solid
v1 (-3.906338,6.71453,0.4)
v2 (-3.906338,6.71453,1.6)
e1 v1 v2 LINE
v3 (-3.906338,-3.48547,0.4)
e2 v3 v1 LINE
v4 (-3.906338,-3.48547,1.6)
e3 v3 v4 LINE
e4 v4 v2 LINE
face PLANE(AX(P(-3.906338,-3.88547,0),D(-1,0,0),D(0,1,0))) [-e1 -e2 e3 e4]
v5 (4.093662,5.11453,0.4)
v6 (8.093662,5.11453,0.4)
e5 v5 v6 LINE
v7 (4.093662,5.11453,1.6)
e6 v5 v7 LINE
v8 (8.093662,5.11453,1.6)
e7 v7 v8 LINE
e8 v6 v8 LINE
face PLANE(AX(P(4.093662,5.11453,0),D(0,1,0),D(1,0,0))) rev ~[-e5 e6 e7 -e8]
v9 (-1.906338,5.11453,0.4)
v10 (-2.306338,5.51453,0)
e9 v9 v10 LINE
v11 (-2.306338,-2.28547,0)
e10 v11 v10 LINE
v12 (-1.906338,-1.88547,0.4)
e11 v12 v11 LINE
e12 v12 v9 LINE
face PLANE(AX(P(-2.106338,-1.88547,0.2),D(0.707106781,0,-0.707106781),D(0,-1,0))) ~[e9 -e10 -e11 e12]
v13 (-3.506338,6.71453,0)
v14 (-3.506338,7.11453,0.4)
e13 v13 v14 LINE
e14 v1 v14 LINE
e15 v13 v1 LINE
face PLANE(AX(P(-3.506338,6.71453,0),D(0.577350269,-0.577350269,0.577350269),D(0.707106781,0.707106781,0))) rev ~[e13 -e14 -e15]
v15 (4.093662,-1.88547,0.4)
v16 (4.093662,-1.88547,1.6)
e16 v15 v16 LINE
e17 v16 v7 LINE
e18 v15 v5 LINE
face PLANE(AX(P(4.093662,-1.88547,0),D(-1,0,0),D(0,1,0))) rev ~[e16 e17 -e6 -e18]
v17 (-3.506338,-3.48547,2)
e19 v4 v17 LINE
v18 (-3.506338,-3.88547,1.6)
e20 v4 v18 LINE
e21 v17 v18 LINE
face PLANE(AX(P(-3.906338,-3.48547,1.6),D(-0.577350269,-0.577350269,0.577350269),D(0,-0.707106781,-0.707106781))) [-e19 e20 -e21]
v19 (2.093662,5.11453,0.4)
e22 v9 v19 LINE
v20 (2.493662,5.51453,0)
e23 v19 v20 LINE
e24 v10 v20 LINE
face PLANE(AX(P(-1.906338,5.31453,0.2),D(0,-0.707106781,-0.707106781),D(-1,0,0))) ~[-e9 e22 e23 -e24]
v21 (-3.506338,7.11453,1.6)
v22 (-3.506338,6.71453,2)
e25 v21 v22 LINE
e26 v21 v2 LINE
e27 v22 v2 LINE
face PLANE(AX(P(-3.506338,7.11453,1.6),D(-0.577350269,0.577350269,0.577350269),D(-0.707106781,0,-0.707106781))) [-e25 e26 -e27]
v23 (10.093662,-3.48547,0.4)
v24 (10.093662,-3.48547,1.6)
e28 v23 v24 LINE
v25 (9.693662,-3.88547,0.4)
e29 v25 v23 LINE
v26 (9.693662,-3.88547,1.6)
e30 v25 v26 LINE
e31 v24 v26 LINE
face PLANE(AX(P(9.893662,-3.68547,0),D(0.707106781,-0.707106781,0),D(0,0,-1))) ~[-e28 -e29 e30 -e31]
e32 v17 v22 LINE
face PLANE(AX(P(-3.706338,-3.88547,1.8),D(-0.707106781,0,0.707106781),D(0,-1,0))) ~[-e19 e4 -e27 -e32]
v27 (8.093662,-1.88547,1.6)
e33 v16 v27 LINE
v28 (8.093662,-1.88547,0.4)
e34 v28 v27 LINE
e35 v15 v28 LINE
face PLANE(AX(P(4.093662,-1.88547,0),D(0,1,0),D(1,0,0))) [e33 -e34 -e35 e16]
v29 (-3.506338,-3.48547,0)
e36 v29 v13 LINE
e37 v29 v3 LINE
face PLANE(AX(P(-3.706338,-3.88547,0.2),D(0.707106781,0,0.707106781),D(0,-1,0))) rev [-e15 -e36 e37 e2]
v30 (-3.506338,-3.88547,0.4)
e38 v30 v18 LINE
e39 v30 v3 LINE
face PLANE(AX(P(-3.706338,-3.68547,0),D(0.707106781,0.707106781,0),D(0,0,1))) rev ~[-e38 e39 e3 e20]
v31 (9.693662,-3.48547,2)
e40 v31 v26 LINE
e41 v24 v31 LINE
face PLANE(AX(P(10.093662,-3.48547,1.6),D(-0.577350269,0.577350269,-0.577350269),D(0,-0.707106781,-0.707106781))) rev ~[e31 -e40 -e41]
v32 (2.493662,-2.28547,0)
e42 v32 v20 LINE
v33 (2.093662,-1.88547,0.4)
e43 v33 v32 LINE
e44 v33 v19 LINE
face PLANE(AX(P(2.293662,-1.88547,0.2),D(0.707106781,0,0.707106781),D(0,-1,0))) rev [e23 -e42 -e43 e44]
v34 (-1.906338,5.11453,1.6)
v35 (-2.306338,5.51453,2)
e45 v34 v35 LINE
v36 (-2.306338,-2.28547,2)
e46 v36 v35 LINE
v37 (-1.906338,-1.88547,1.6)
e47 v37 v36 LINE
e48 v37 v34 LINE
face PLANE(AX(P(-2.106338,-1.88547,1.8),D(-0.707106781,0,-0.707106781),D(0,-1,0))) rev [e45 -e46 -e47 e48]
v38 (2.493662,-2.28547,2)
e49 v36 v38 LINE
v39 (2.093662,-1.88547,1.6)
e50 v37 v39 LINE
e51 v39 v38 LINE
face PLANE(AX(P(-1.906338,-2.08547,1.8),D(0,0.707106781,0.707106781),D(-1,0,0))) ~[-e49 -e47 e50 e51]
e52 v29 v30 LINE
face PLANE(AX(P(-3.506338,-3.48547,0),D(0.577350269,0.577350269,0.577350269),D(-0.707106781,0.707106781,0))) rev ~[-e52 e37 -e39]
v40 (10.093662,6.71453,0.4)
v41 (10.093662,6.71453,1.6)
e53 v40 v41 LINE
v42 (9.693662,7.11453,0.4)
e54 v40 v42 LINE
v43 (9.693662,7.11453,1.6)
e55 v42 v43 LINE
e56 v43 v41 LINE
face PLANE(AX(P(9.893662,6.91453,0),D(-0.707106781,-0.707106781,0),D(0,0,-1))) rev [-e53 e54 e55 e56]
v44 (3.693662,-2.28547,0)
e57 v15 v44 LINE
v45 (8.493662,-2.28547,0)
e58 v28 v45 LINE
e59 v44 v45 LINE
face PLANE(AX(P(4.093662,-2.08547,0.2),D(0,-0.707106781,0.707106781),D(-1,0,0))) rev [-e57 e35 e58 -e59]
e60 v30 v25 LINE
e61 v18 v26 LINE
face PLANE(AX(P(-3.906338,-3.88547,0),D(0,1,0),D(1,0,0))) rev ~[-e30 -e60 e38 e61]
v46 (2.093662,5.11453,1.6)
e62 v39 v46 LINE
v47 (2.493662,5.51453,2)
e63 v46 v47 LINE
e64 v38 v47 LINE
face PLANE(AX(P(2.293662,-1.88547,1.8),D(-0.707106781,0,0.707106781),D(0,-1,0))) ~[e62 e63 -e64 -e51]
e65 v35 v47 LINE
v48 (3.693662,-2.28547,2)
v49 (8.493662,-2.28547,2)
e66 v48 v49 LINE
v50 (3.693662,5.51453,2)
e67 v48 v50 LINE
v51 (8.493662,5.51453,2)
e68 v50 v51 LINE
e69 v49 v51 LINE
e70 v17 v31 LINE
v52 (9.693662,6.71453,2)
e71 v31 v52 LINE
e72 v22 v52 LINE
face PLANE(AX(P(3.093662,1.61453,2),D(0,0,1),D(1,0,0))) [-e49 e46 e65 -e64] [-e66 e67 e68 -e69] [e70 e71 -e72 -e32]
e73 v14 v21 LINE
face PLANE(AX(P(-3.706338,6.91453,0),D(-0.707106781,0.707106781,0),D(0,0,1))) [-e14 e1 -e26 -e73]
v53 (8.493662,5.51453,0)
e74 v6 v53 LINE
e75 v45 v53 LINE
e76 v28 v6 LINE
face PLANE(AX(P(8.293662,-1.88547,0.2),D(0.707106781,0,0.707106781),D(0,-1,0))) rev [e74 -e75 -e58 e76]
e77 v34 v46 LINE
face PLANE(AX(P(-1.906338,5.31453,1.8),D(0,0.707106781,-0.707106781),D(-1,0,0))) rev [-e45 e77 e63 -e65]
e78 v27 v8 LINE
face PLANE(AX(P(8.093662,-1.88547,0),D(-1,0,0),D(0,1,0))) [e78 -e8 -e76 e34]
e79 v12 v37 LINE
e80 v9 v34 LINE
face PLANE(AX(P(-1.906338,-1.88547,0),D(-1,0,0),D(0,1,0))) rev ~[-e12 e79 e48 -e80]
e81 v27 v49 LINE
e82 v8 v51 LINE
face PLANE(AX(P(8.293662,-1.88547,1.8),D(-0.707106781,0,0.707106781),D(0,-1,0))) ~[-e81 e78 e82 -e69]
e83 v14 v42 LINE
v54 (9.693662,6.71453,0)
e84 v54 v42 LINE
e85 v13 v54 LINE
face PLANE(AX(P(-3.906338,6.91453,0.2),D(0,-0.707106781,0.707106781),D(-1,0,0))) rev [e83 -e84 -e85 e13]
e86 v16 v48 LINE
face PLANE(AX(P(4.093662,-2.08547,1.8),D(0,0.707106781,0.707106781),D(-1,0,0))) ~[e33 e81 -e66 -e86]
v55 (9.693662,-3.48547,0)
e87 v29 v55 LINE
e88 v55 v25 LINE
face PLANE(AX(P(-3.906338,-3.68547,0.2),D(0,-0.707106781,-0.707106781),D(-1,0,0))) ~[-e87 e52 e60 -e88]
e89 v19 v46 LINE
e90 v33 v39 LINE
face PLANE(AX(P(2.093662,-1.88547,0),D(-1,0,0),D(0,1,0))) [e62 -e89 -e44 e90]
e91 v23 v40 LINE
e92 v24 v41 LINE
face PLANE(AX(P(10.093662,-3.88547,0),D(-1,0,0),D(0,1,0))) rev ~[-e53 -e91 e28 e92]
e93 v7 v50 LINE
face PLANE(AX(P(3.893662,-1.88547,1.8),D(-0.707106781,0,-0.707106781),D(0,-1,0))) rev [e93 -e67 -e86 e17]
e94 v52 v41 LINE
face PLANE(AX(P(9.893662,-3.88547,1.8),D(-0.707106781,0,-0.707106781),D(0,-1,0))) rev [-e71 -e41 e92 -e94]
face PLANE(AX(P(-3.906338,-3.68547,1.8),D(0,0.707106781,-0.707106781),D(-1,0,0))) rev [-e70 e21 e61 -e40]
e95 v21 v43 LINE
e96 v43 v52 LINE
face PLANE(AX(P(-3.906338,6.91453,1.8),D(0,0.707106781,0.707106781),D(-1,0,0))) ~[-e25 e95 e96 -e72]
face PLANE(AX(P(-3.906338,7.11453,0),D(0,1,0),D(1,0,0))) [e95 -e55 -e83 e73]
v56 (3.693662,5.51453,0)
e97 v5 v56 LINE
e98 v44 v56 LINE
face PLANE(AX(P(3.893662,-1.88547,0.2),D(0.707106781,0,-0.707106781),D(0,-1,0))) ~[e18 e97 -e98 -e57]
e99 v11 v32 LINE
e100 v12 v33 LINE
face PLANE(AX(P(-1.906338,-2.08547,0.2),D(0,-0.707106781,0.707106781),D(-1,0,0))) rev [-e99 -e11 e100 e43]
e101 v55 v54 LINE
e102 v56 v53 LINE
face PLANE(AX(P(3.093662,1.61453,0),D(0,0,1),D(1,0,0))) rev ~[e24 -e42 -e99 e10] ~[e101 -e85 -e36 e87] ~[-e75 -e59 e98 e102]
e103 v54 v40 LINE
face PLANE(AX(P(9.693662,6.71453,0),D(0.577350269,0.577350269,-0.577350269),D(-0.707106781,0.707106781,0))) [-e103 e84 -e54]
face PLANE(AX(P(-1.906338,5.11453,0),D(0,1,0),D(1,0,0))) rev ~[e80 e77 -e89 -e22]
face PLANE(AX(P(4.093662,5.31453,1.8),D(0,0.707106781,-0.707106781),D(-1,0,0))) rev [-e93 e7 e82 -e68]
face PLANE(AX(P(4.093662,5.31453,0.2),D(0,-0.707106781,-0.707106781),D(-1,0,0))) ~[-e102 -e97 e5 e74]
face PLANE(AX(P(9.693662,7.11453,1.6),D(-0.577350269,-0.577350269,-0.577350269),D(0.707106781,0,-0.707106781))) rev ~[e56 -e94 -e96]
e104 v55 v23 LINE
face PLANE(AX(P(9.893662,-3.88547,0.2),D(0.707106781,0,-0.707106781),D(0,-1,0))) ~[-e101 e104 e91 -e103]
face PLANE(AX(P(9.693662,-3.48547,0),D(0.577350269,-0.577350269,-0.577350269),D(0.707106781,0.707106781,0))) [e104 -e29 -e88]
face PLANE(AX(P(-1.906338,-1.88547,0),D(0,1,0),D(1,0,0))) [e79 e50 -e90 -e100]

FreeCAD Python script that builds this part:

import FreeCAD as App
import Part
import Sketcher


def edges_at(feature, points):
    """Names of the edges that pass closest to the given points."""
    edges = feature.Shape.Edges
    near = lambda p: min(range(len(edges)), key=lambda i: edges[i].distToShape(Part.Vertex(*p))[0])
    return sorted({f"Edge{near(p) + 1}" for p in points})

doc = App.newDocument("Part")
params = doc.addObject("Spreadsheet::Sheet", "Params")
for row, (alias, value) in enumerate([
    ("sketch1_width", "14 mm"),
    ("sketch1_width2", "4 mm"),
    ("sketch1_height", "11 mm"),
    ("sketch1_height2", "7 mm"),
    ("pad1_length", "2 mm"),
    ("chamfer_size", "0.4 mm"),
], start=1):
    params.set(f"A{row}", alias)
    params.set(f"B{row}", "=" + value)
    params.setAlias(f"B{row}", alias)

body = doc.addObject("PartDesign::Body", "Body")

# Sketch on XY plane
sketch1 = doc.addObject("Sketcher::SketchObject", "Sketch")
body.addObject(sketch1)
sketch1.AttachmentSupport = (doc.XY_Plane, [""])
sketch1.MapMode = "FlatFace"
sketch1.addGeometry([
    Part.LineSegment(App.Vector(-3.9, 7.1, 0), App.Vector(-3.9, -3.9, 0)),  # 0
    Part.LineSegment(App.Vector(-3.9, -3.9, 0), App.Vector(10.1, -3.9, 0)),  # 1
    Part.LineSegment(App.Vector(10.1, -3.9, 0), App.Vector(10.1, 7.1, 0)),  # 2
    Part.LineSegment(App.Vector(10.1, 7.1, 0), App.Vector(-3.9, 7.1, 0)),  # 3
    Part.LineSegment(App.Vector(2.1, -1.9, 0), App.Vector(-1.9, -1.9, 0)),  # 4
    Part.LineSegment(App.Vector(-1.9, -1.9, 0), App.Vector(-1.9, 5.1, 0)),  # 5
    Part.LineSegment(App.Vector(-1.9, 5.1, 0), App.Vector(2.1, 5.1, 0)),  # 6
    Part.LineSegment(App.Vector(2.1, 5.1, 0), App.Vector(2.1, -1.9, 0)),  # 7
    Part.LineSegment(App.Vector(8.1, -1.9, 0), App.Vector(4.1, -1.9, 0)),  # 8
    Part.LineSegment(App.Vector(4.1, -1.9, 0), App.Vector(4.1, 5.1, 0)),  # 9
    Part.LineSegment(App.Vector(4.1, 5.1, 0), App.Vector(8.1, 5.1, 0)),  # 10
    Part.LineSegment(App.Vector(8.1, 5.1, 0), App.Vector(8.1, -1.9, 0)),  # 11
], False)
sketch1.addConstraint([
    Sketcher.Constraint("Coincident", 0, 2, 1, 1),
    Sketcher.Constraint("Coincident", 1, 2, 2, 1),
    Sketcher.Constraint("Coincident", 2, 2, 3, 1),
    Sketcher.Constraint("Coincident", 3, 2, 0, 1),
    Sketcher.Constraint("Coincident", 4, 2, 5, 1),
    Sketcher.Constraint("Coincident", 5, 2, 6, 1),
    Sketcher.Constraint("Coincident", 6, 2, 7, 1),
    Sketcher.Constraint("Coincident", 7, 2, 4, 1),
    Sketcher.Constraint("Coincident", 8, 2, 9, 1),
    Sketcher.Constraint("Coincident", 9, 2, 10, 1),
    Sketcher.Constraint("Coincident", 10, 2, 11, 1),
    Sketcher.Constraint("Coincident", 11, 2, 8, 1),
    Sketcher.Constraint("Vertical", 0),
    Sketcher.Constraint("Horizontal", 1),
    Sketcher.Constraint("Vertical", 2),
    Sketcher.Constraint("Horizontal", 3),
    Sketcher.Constraint("Horizontal", 4),
    Sketcher.Constraint("Vertical", 5),
    Sketcher.Constraint("Horizontal", 6),
    Sketcher.Constraint("Vertical", 7),
    Sketcher.Constraint("Horizontal", 8),
    Sketcher.Constraint("Vertical", 9),
    Sketcher.Constraint("Horizontal", 10),
    Sketcher.Constraint("Vertical", 11),
    Sketcher.Constraint("Horizontal", 7, 2, 8, 2),
    Sketcher.Constraint("Horizontal", 6, 2, 9, 2),
    Sketcher.Constraint("Equal", 6, 8),
    Sketcher.Constraint("DistanceX", 1, 1, 1, 2, 14.0),
    Sketcher.Constraint("DistanceX", 4, 2, 4, 1, 4.0),
    Sketcher.Constraint("DistanceY", 0, 2, 0, 1, 11.0),
    Sketcher.Constraint("DistanceY", 5, 1, 5, 2, 7.0),
    Sketcher.Constraint("DistanceX", 0, 2, 4, 2, 2.0),
    Sketcher.Constraint("DistanceY", 0, 2, 4, 2, 2.0),
    Sketcher.Constraint("DistanceX", 7, 2, 8, 2, 2.0),
    Sketcher.Constraint("DistanceY", 0, 2, -1, 1, 3.88547),
    Sketcher.Constraint("DistanceX", 4, 2, -1, 1, 1.906338),
])
sketch1.setExpression("Constraints[27]", "Params.sketch1_width")
sketch1.setExpression("Constraints[28]", "Params.sketch1_width2")
sketch1.setExpression("Constraints[29]", "Params.sketch1_height")
sketch1.setExpression("Constraints[30]", "Params.sketch1_height2")
pad1 = doc.addObject("PartDesign::Pad", "Pad")
body.addObject(pad1)
pad1.Profile = sketch1
pad1.setExpression("Length", "Params.pad1_length")
doc.recompute()

chamfer = doc.addObject("PartDesign::Chamfer", "Chamfer")
body.addObject(chamfer)
chamfer.Base = (pad1, edges_at(pad1, [
    (3.094, -3.885, 2),
    (-3.906, 1.615, 2),
    (-1.906, 1.615, 2),
    (2.094, 1.615, 2),
    (4.094, 1.615, 2),
    (8.094, 1.615, 2),
    (0.094, 5.115, 2),
    (0.094, -1.885, 2),
    (6.094, -1.885, 2),
    (10.094, 1.615, 2),
    (3.094, 7.115, 2),
    (6.094, 5.115, 2),
    (10.094, 7.115, 1),
    (-3.906, 7.115, 1),
    (10.094, -3.885, 1),
    (-3.906, -3.885, 1),
    (3.094, -3.885, 0),
    (10.094, 1.615, 0),
    (8.094, 1.615, 0),
    (6.094, 5.115, 0),
    (4.094, 1.615, 0),
    (6.094, -1.885, 0),
    (2.094, 1.615, 0),
    (0.094, 5.115, 0),
    (0.094, -1.885, 0),
    (-1.906, 1.615, 0),
    (-3.906, 1.615, 0),
    (3.094, 7.115, 0),
]))
chamfer.setExpression("Size", "Params.chamfer_size")

doc.recompute()
